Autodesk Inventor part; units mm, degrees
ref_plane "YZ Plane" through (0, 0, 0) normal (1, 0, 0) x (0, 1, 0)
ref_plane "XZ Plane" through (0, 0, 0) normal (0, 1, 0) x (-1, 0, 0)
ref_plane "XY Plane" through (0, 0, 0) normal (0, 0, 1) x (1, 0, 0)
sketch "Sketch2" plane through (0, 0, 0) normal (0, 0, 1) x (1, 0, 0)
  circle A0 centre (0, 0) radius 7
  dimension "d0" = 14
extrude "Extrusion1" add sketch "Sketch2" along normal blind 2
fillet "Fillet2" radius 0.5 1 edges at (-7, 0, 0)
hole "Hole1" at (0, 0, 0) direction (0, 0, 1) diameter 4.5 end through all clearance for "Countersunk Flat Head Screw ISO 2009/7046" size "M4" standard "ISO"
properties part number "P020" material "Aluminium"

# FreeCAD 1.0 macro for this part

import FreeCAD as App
import Part
import Sketcher
from FreeCAD import Vector
Q = App.Units.Quantity


def edges_at(feature, points):
    """Names of the edges that pass closest to the given points."""
    edges = feature.Shape.Edges
    near = lambda p: min(range(len(edges)), key=lambda i: edges[i].distToShape(Part.Vertex(*p))[0])
    return sorted({f"Edge{near(p) + 1}" for p in points})

doc = App.newDocument("Part")
params = doc.addObject("Spreadsheet::Sheet", "Params")
for row, (alias, value) in enumerate([
    ("sketch1_diameter", "14 mm"),
    ("pad1_length", "2 mm"),
    ("fillet_radius", "0.5 mm"),
    ("sketch2_diameter", "4.5 mm"),
    ("hole_diameter", "4.5 mm"),
], start=1):
    params.set(f"A{row}", alias)
    params.set(f"B{row}", "=" + value)
    params.setAlias(f"B{row}", alias)

body = doc.addObject("PartDesign::Body", "Body")

sketch1 = doc.addObject("Sketcher::SketchObject", "Sketch")
body.addObject(sketch1)
sketch1.AttachmentSupport = (doc.XY_Plane, [""])
sketch1.MapMode = "FlatFace"
sketch1.addGeometry(Part.Circle(Vector(0, 0, 0), Vector(0, 0, 1), 7), False)
sketch1.addConstraint([
    Sketcher.Constraint("Coincident", 0, 3, -1, 1),
    Sketcher.Constraint("Diameter", 0, Q("14 mm")),
])
sketch1.setExpression("Constraints[1]", "Params.sketch1_diameter")
pad1 = doc.addObject("PartDesign::Pad", "Pad")
body.addObject(pad1)
pad1.Profile = sketch1
pad1.setExpression("Length", "Params.pad1_length")
doc.recompute()

fillet = doc.addObject("PartDesign::Fillet", "Fillet")
body.addObject(fillet)
fillet.Base = (pad1, edges_at(pad1, [(-7, 0, 0)]))
fillet.setExpression("Radius", "Params.fillet_radius")

sketch2 = doc.addObject("Sketcher::SketchObject", "Sketch001")
body.addObject(sketch2)
sketch2.AttachmentSupport = (doc.XY_Plane, [""])
sketch2.MapMode = "FlatFace"
sketch2.addGeometry(Part.Circle(Vector(0, 0, 0), Vector(0, 0, 1), 2.2), False)
sketch2.addConstraint([
    Sketcher.Constraint("Coincident", 0, 3, -1, 1),
    Sketcher.Constraint("Diameter", 0, Q("4.5 mm")),
])
sketch2.setExpression("Constraints[1]", "Params.sketch2_diameter")
doc.recompute()
hole = doc.addObject("PartDesign::Hole", "Hole")
body.addObject(hole)
hole.Profile = sketch2
hole.ThreadType = "None"
hole.setExpression("Diameter", "Params.hole_diameter")
hole.DepthType = "ThroughAll"
hole.Reversed = True

doc.recompute()
